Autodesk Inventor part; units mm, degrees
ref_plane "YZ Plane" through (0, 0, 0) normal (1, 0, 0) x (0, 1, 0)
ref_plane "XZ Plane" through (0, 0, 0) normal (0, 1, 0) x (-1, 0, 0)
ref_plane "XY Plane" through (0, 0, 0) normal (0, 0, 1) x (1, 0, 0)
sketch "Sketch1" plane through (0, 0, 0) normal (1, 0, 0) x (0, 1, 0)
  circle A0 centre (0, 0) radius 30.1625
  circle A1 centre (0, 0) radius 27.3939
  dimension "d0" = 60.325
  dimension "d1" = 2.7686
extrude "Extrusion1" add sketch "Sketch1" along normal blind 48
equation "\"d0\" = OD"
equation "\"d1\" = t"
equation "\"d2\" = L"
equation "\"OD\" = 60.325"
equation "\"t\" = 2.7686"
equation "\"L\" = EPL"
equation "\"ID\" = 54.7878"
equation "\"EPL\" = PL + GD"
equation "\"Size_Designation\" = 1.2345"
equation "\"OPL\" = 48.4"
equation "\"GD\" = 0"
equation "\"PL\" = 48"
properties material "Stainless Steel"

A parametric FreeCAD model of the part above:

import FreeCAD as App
import Part
import Sketcher

V = App.Vector
Q = App.Units.Quantity

doc = App.newDocument("Part")
body = doc.addObject("PartDesign::Body", "Body")

sketch1 = body.newObject("Sketcher::SketchObject", "Sketch")
sketch1.AttachmentSupport = (doc.getObject("YZ_Plane"), [""])
sketch1.MapMode = "FlatFace"
sketch1.addGeometry([
    Part.Circle(V(0, 0, 0), V(0, 0, 1), 30),
    Part.Circle(V(0, 0, 0), V(0, 0, 1), 27),
], False)
sketch1.addConstraint([
    Sketcher.Constraint("Coincident", 0, 3, -1, 1),
    Sketcher.Constraint("Coincident", 1, 3, -1, 1),
    Sketcher.Constraint("Diameter", 0, Q("2.375 in")),
    Sketcher.Constraint("Diameter", 1, Q("2.157 in")),
])
pad1 = body.newObject("PartDesign::Pad", "Pad")
pad1.Profile = sketch1
pad1.Length = 48

doc.recompute()
